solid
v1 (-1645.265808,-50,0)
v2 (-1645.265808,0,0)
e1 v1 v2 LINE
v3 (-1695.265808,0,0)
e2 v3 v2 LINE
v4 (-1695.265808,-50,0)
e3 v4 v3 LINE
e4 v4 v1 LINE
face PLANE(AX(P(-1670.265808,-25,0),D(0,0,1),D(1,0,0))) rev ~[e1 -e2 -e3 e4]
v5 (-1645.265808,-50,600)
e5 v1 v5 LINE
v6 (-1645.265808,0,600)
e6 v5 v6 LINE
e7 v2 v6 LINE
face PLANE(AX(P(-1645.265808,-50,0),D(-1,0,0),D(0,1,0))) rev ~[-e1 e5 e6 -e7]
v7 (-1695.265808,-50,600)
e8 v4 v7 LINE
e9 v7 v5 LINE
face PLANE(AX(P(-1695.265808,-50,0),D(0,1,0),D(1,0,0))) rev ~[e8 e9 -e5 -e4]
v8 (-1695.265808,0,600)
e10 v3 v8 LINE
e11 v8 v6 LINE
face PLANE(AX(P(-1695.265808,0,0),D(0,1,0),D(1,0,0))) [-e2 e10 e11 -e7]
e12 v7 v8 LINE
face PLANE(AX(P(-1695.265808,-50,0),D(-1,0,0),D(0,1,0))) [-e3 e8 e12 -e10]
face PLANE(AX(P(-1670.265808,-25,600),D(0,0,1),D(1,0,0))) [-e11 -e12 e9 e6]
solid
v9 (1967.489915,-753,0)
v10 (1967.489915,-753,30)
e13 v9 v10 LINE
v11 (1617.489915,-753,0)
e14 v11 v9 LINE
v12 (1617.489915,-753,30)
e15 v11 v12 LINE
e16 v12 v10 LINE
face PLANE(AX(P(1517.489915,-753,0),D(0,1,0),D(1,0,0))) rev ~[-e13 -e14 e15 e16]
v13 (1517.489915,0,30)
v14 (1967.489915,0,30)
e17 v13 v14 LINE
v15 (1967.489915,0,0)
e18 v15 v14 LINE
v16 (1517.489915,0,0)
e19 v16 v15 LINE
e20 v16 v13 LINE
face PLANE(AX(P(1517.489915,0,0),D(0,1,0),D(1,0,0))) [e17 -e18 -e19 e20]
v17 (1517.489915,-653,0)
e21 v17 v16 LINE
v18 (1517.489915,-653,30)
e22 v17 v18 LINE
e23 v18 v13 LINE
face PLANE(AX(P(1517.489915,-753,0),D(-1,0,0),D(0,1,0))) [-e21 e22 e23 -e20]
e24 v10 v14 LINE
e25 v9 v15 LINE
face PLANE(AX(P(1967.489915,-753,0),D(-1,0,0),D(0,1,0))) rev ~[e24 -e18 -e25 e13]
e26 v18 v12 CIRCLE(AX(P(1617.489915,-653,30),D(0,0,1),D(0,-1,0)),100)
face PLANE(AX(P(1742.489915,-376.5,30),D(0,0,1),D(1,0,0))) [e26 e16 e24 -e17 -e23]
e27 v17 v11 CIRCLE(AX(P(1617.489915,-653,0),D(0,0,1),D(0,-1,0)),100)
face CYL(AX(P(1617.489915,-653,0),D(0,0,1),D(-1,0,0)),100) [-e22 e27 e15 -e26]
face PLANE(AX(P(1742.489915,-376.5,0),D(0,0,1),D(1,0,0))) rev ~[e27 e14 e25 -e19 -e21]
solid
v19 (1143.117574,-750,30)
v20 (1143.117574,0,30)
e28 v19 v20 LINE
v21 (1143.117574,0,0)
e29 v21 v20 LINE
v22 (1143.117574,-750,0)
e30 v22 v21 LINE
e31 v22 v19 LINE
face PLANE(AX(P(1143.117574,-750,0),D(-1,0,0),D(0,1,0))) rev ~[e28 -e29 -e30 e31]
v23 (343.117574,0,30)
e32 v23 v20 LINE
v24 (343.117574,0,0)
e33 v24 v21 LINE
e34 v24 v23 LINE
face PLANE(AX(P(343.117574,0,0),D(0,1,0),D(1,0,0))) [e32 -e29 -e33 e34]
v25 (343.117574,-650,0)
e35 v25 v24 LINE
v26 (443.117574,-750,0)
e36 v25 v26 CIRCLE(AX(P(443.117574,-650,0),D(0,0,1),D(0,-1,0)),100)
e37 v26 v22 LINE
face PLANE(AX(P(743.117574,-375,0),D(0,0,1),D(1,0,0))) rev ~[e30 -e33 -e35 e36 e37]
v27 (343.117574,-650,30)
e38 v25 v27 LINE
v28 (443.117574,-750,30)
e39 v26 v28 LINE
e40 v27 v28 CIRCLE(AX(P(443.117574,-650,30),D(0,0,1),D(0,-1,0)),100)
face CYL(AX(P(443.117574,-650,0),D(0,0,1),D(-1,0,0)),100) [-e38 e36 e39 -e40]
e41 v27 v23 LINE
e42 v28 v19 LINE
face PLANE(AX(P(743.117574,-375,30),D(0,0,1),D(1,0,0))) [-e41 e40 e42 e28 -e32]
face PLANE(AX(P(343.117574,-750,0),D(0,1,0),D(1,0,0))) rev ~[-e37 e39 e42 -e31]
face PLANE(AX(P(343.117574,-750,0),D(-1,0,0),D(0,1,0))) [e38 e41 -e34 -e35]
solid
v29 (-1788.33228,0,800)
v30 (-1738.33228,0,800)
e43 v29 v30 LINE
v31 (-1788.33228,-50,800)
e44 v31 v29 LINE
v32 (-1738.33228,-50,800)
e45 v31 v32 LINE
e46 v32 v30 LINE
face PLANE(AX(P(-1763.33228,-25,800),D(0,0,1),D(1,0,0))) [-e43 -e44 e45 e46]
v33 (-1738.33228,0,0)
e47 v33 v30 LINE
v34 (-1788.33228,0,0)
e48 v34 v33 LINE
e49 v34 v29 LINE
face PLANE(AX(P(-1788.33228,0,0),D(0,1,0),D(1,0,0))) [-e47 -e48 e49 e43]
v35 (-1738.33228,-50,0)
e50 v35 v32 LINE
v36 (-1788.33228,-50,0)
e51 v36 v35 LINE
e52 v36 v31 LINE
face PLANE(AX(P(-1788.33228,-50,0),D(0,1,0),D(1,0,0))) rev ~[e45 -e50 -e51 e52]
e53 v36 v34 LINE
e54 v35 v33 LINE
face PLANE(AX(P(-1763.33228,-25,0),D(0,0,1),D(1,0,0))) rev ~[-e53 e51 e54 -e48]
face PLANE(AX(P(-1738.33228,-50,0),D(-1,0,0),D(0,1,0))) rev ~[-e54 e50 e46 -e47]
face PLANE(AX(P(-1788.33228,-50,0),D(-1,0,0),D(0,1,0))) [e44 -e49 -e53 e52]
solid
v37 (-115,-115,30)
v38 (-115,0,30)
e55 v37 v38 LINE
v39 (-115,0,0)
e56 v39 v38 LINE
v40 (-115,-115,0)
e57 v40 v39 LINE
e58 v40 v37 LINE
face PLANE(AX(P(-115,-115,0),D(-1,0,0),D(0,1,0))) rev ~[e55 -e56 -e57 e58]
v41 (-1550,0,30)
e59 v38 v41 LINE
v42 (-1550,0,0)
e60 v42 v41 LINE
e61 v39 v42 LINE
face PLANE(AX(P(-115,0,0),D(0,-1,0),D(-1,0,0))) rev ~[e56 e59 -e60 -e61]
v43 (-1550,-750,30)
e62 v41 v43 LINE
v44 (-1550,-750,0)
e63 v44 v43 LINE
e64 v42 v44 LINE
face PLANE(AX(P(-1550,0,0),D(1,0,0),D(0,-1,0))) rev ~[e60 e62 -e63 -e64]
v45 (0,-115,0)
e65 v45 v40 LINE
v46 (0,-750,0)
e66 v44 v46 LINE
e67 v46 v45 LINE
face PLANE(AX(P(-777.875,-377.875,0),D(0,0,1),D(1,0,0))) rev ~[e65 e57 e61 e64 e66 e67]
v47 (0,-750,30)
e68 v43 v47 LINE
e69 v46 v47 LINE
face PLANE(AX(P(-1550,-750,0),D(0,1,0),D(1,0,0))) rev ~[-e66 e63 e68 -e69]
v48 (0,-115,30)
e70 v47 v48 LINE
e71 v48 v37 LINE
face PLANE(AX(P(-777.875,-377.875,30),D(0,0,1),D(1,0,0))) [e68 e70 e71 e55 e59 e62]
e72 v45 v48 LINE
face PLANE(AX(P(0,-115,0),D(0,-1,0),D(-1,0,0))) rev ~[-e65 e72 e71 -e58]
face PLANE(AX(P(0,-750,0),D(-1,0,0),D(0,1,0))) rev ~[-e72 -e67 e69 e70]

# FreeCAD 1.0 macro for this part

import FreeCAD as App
import Part
import Sketcher


def edges_at(feature, points):
    """Names of the edges that pass closest to the given points."""
    edges = feature.Shape.Edges
    near = lambda p: min(range(len(edges)), key=lambda i: edges[i].distToShape(Part.Vertex(*p))[0])
    return sorted({f"Edge{near(p) + 1}" for p in points})

doc = App.newDocument("Part")
body = doc.addObject("PartDesign::Body", "Body")
body.AllowCompound = True

sketch1 = body.newObject("Sketcher::SketchObject", "Sketch")
sketch1.AttachmentSupport = (doc.getObject("XY_Plane"), [""])
sketch1.MapMode = "FlatFace"
sketch1.addGeometry([
    Part.LineSegment(App.Vector(343, 0, 0), App.Vector(343, -750, 0)),
    Part.LineSegment(App.Vector(343, -750, 0), App.Vector(1143, -750, 0)),
    Part.LineSegment(App.Vector(1143, -750, 0), App.Vector(1143, 0, 0)),
    Part.LineSegment(App.Vector(1143, 0, 0), App.Vector(343, 0, 0)),
    Part.LineSegment(App.Vector(-115, -115, 0), App.Vector(-115, 0, 0)),
    Part.LineSegment(App.Vector(-115, 0, 0), App.Vector(-1550, 0, 0)),
    Part.LineSegment(App.Vector(-1550, 0, 0), App.Vector(-1550, -750, 0)),
    Part.LineSegment(App.Vector(-1550, -750, 0), App.Vector(0, -750, 0)),
    Part.LineSegment(App.Vector(0, -750, 0), App.Vector(0, -115, 0)),
    Part.LineSegment(App.Vector(0, -115, 0), App.Vector(-115, -115, 0)),
], False)
sketch1.addConstraint([
    Sketcher.Constraint("Coincident", 0, 2, 1, 1),
    Sketcher.Constraint("Coincident", 1, 2, 2, 1),
    Sketcher.Constraint("Coincident", 2, 2, 3, 1),
    Sketcher.Constraint("Coincident", 3, 2, 0, 1),
    Sketcher.Constraint("Coincident", 4, 2, 5, 1),
    Sketcher.Constraint("Coincident", 5, 2, 6, 1),
    Sketcher.Constraint("Coincident", 6, 2, 7, 1),
    Sketcher.Constraint("Coincident", 7, 2, 8, 1),
    Sketcher.Constraint("Coincident", 8, 2, 9, 1),
    Sketcher.Constraint("Coincident", 9, 2, 4, 1),
    Sketcher.Constraint("Vertical", 0),
    Sketcher.Constraint("Horizontal", 1),
    Sketcher.Constraint("Vertical", 2),
    Sketcher.Constraint("Horizontal", 3),
    Sketcher.Constraint("Vertical", 4),
    Sketcher.Constraint("Horizontal", 5),
    Sketcher.Constraint("Vertical", 6),
    Sketcher.Constraint("Horizontal", 7),
    Sketcher.Constraint("Vertical", 8),
    Sketcher.Constraint("Horizontal", 9),
    Sketcher.Constraint("PointOnObject", 2, 2, -1),
    Sketcher.Constraint("PointOnObject", 4, 2, -1),
    Sketcher.Constraint("PointOnObject", 7, 2, -2),
    Sketcher.Constraint("Horizontal", 1, 2, 6, 2),
    Sketcher.Constraint("Equal", 9, 4),
    Sketcher.Constraint("DistanceX", 1, 1, 1, 2, 800.0),
    Sketcher.Constraint("DistanceX", 5, 2, 5, 1, 1435.0),
    Sketcher.Constraint("DistanceX", 7, 1, 7, 2, 1550.0),
    Sketcher.Constraint("DistanceY", 0, 2, 0, 1, 750.0),
    Sketcher.Constraint("DistanceX", -1, 1, 0, 2, 343.117574),
])
pad1 = body.newObject("PartDesign::Pad", "Pad")
pad1.Profile = sketch1
pad1.Length = 30
doc.recompute()

fillet = body.newObject("PartDesign::Fillet", "Fillet")
fillet.Base = (pad1, edges_at(pad1, [(343.118, -750, 15)]))
fillet.Radius = 100
body2 = doc.addObject("PartDesign::Body", "Body001")

sketch2 = body2.newObject("Sketcher::SketchObject", "Sketch001")
sketch2.AttachmentSupport = (doc.getObject("XY_Plane001"), [""])
sketch2.MapMode = "FlatFace"
sketch2.addGeometry([
    Part.LineSegment(App.Vector(-1788, 0, 0), App.Vector(-1788, -50, 0)),
    Part.LineSegment(App.Vector(-1788, -50, 0), App.Vector(-1738, -50, 0)),
    Part.LineSegment(App.Vector(-1738, -50, 0), App.Vector(-1738, 0, 0)),
    Part.LineSegment(App.Vector(-1738, 0, 0), App.Vector(-1788, 0, 0)),
], False)
sketch2.addConstraint([
    Sketcher.Constraint("Coincident", 0, 2, 1, 1),
    Sketcher.Constraint("Coincident", 1, 2, 2, 1),
    Sketcher.Constraint("Coincident", 2, 2, 3, 1),
    Sketcher.Constraint("Coincident", 3, 2, 0, 1),
    Sketcher.Constraint("Vertical", 0),
    Sketcher.Constraint("Horizontal", 1),
    Sketcher.Constraint("Vertical", 2),
    Sketcher.Constraint("Horizontal", 3),
    Sketcher.Constraint("PointOnObject", 2, 2, -1),
    Sketcher.Constraint("Equal", 3, 0),
    Sketcher.Constraint("DistanceX", 1, 1, 1, 2, 50.0),
    Sketcher.Constraint("DistanceX", 0, 2, -1, 1, 1788.33228),
])
pad2 = body2.newObject("PartDesign::Pad", "Pad001")
pad2.Profile = sketch2
pad2.Length = 800
body3 = doc.addObject("PartDesign::Body", "Body002")

sketch3 = body3.newObject("Sketcher::SketchObject", "Sketch002")
sketch3.AttachmentSupport = (doc.getObject("XY_Plane002"), [""])
sketch3.MapMode = "FlatFace"
sketch3.addGeometry([
    Part.LineSegment(App.Vector(-1695, 0, 0), App.Vector(-1695, -50, 0)),
    Part.LineSegment(App.Vector(-1695, -50, 0), App.Vector(-1645, -50, 0)),
    Part.LineSegment(App.Vector(-1645, -50, 0), App.Vector(-1645, 0, 0)),
    Part.LineSegment(App.Vector(-1645, 0, 0), App.Vector(-1695, 0, 0)),
], False)
sketch3.addConstraint([
    Sketcher.Constraint("Coincident", 0, 2, 1, 1),
    Sketcher.Constraint("Coincident", 1, 2, 2, 1),
    Sketcher.Constraint("Coincident", 2, 2, 3, 1),
    Sketcher.Constraint("Coincident", 3, 2, 0, 1),
    Sketcher.Constraint("Vertical", 0),
    Sketcher.Constraint("Horizontal", 1),
    Sketcher.Constraint("Vertical", 2),
    Sketcher.Constraint("Horizontal", 3),
    Sketcher.Constraint("PointOnObject", 2, 2, -1),
    Sketcher.Constraint("Equal", 3, 0),
    Sketcher.Constraint("DistanceX", 1, 1, 1, 2, 50.0),
    Sketcher.Constraint("DistanceX", 0, 2, -1, 1, 1695.265808),
])
pad3 = body3.newObject("PartDesign::Pad", "Pad002")
pad3.Profile = sketch3
pad3.Length = 600
body4 = doc.addObject("PartDesign::Body", "Body003")

sketch4 = body4.newObject("Sketcher::SketchObject", "Sketch003")
sketch4.AttachmentSupport = (doc.getObject("XY_Plane003"), [""])
sketch4.MapMode = "FlatFace"
sketch4.addGeometry([
    Part.LineSegment(App.Vector(1517, 0, 0), App.Vector(1517, -753, 0)),
    Part.LineSegment(App.Vector(1517, -753, 0), App.Vector(1967, -753, 0)),
    Part.LineSegment(App.Vector(1967, -753, 0), App.Vector(1967, 0, 0)),
    Part.LineSegment(App.Vector(1967, 0, 0), App.Vector(1517, 0, 0)),
], False)
sketch4.addConstraint([
    Sketcher.Constraint("Coincident", 0, 2, 1, 1),
    Sketcher.Constraint("Coincident", 1, 2, 2, 1),
    Sketcher.Constraint("Coincident", 2, 2, 3, 1),
    Sketcher.Constraint("Coincident", 3, 2, 0, 1),
    Sketcher.Constraint("Vertical", 0),
    Sketcher.Constraint("Horizontal", 1),
    Sketcher.Constraint("Vertical", 2),
    Sketcher.Constraint("Horizontal", 3),
    Sketcher.Constraint("PointOnObject", 2, 2, -1),
    Sketcher.Constraint("DistanceX", 1, 1, 1, 2, 450.0),
    Sketcher.Constraint("DistanceY", 0, 2, 0, 1, 753.0),
    Sketcher.Constraint("DistanceX", -1, 1, 0, 2, 1517.489915),
])
pad4 = body4.newObject("PartDesign::Pad", "Pad003")
pad4.Profile = sketch4
pad4.Length = 30
doc.recompute()

fillet2 = body4.newObject("PartDesign::Fillet", "Fillet001")
fillet2.Base = (pad4, edges_at(pad4, [(1517.49, -753, 15)]))
fillet2.Radius = 100

doc.recompute()
